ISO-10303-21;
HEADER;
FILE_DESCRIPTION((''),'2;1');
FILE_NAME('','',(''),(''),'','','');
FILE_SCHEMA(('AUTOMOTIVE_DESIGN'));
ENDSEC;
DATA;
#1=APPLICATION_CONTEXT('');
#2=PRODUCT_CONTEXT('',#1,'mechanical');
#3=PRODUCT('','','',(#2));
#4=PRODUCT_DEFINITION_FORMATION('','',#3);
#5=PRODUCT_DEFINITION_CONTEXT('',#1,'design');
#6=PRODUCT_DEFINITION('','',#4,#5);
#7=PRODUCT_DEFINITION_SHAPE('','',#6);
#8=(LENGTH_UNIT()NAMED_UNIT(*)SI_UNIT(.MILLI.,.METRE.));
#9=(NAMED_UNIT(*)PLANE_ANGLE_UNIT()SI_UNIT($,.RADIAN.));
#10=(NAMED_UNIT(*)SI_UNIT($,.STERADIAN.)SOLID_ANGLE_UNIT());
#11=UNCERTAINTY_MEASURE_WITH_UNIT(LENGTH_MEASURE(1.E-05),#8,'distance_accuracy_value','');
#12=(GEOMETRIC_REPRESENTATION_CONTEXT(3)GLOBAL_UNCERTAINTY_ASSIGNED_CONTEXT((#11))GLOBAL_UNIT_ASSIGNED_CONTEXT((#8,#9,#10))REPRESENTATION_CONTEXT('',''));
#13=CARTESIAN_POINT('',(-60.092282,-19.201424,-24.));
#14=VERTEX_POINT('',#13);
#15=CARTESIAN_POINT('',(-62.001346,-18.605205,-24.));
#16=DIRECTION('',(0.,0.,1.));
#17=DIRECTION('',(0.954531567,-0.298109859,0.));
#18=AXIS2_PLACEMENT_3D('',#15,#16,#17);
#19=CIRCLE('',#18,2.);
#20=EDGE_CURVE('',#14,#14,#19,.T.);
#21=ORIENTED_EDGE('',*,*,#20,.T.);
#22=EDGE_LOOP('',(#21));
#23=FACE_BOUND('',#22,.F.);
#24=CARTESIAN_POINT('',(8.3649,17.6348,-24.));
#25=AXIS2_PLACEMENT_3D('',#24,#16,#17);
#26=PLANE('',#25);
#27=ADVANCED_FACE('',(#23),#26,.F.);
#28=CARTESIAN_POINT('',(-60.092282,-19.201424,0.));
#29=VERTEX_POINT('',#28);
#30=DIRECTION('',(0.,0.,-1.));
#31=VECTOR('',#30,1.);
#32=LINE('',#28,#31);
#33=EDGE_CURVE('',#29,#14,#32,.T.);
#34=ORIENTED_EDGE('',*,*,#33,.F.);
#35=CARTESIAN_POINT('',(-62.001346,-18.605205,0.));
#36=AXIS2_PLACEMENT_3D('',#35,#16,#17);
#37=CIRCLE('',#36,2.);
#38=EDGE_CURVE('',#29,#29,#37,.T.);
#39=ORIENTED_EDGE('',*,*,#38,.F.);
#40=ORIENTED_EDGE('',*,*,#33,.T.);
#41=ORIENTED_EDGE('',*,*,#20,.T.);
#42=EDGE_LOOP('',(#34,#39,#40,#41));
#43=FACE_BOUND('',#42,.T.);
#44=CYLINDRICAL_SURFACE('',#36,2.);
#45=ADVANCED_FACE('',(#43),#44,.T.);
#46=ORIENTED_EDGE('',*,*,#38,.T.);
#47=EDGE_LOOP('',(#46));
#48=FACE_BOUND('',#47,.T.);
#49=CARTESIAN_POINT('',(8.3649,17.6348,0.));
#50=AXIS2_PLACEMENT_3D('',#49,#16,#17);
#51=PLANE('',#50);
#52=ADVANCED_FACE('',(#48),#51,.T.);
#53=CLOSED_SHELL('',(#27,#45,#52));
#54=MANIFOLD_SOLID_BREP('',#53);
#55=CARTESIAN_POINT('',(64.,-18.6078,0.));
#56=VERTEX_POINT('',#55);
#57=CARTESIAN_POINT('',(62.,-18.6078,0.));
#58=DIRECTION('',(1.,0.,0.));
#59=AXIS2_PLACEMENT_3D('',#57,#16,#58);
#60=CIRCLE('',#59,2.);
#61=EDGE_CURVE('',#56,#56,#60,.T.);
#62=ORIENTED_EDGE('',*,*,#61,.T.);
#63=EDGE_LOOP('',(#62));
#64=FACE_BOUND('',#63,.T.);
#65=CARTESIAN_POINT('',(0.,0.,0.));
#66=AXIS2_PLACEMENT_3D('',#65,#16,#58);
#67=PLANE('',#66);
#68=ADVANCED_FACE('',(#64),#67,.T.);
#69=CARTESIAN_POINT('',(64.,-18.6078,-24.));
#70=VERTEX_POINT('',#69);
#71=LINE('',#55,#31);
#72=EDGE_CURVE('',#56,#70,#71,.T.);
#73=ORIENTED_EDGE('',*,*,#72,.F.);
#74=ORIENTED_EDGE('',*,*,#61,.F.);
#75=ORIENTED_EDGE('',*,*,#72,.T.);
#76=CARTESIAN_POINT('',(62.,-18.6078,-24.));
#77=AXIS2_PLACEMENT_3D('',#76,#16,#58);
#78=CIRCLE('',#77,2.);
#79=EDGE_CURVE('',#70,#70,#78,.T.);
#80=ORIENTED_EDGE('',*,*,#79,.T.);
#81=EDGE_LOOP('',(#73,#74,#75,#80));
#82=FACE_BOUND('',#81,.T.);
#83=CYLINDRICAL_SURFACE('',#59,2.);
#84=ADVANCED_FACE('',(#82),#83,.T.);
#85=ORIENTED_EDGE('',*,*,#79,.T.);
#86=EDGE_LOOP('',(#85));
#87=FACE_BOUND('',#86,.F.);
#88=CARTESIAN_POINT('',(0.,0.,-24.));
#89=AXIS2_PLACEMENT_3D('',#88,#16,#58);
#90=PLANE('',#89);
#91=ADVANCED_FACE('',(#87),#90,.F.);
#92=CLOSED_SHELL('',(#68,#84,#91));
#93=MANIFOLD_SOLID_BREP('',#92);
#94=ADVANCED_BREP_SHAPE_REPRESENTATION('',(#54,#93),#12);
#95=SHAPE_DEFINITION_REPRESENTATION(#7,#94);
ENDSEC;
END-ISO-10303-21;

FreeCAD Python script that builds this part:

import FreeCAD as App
import Part
import Sketcher
from FreeCAD import Vector
Q = App.Units.Quantity

doc = App.newDocument("Part")
body = doc.addObject("PartDesign::Body", "Body")
body.AllowCompound = True

sketch1 = body.newObject("Sketcher::SketchObject", "Sketch")
sketch1.AttachmentSupport = (doc.getObject("XY_Plane"), [""])
sketch1.MapMode = "FlatFace"
sketch1.addGeometry(Part.Circle(Vector(62, -18.6078, 0), Vector(0, 0, 1), 2), False)
sketch1.addConstraint(Sketcher.Constraint("Diameter", 0, Q("4 mm")))
sketch1.addConstraint(Sketcher.Constraint("DistanceX", -1, 1, 0, 3, Q("62 mm")))
sketch1.addConstraint(Sketcher.Constraint("DistanceY", 0, 3, -1, 1, Q("18.6078 mm")))
pad1 = body.newObject("PartDesign::Pad", "Pad")
pad1.Profile = sketch1
pad1.Length = 24
pad1.Reversed = True

sketch2 = body.newObject("Sketcher::SketchObject", "Sketch001")
sketch2.AttachmentSupport = (doc.getObject("XY_Plane"), [""])
sketch2.MapMode = "FlatFace"
sketch2.addGeometry(Part.Circle(Vector(-62.001346, -18.605205, 0), Vector(0, 0, 1), 2), False)
sketch2.addConstraint(Sketcher.Constraint("Diameter", 0, Q("4 mm")))
sketch2.addConstraint(Sketcher.Constraint("DistanceX", 0, 3, -1, 1, Q("62.0013 mm")))
sketch2.addConstraint(Sketcher.Constraint("DistanceY", 0, 3, -1, 1, Q("18.6052 mm")))
pad2 = body.newObject("PartDesign::Pad", "Pad001")
pad2.Profile = sketch2
pad2.Length = 24
pad2.Reversed = True

doc.recompute()
